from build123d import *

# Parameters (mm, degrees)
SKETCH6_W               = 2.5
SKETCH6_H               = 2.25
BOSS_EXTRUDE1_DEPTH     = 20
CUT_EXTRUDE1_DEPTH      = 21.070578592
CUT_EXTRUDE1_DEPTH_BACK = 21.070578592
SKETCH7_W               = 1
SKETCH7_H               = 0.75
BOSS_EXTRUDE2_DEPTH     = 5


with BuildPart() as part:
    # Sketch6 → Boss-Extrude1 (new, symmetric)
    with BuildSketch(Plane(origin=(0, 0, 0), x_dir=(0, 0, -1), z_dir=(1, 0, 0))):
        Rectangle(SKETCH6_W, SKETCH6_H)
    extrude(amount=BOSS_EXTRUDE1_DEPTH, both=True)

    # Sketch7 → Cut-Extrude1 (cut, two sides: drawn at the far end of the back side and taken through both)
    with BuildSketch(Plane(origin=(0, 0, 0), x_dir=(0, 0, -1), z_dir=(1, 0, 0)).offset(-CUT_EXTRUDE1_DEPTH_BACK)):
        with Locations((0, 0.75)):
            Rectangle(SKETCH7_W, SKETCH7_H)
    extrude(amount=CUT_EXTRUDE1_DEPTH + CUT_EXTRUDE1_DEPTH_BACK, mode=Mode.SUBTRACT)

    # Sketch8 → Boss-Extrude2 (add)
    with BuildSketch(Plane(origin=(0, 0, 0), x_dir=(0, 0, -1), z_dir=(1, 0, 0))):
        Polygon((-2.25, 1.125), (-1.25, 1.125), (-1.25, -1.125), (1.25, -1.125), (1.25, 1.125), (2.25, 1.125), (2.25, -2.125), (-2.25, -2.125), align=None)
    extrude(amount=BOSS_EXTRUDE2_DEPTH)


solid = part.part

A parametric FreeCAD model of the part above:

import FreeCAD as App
import Part
import Sketcher

V = App.Vector

doc = App.newDocument("Part")
body = doc.addObject("PartDesign::Body", "Body")

# Sketch on YZ plane
sketch1 = doc.addObject("Sketcher::SketchObject", "Sketch")
body.addObject(sketch1)
sketch1.AttachmentSupport = (doc.YZ_Plane, [""])
sketch1.MapMode = "FlatFace"
sketch1.addGeometry(Part.LineSegment(V(1.1, 1.2, 0), V(-1.1, 1.2, 0)), False)
sketch1.addGeometry(Part.LineSegment(V(-1.1, 1.2, 0), V(-1.1, -1.2, 0)), False)
sketch1.addGeometry(Part.LineSegment(V(-1.1, -1.2, 0), V(1.1, -1.2, 0)), False)
sketch1.addGeometry(Part.LineSegment(V(1.1, -1.2, 0), V(1.1, 1.2, 0)), False)
sketch1.addConstraint(Sketcher.Constraint("Coincident", 0, 2, 1, 1))
sketch1.addConstraint(Sketcher.Constraint("Coincident", 1, 2, 2, 1))
sketch1.addConstraint(Sketcher.Constraint("Coincident", 2, 2, 3, 1))
sketch1.addConstraint(Sketcher.Constraint("Coincident", 3, 2, 0, 1))
sketch1.addConstraint(Sketcher.Constraint("Horizontal", 0))
sketch1.addConstraint(Sketcher.Constraint("Vertical", 1))
sketch1.addConstraint(Sketcher.Constraint("Horizontal", 2))
sketch1.addConstraint(Sketcher.Constraint("Vertical", 3))
sketch1.addConstraint(Sketcher.Constraint("Symmetric", 0, 2, 2, 2, -1, 1))
sketch1.addConstraint(Sketcher.Constraint("DistanceY", 1, 2, 1, 1, 2.5))
sketch1.addConstraint(Sketcher.Constraint("DistanceX", 0, 2, 0, 1, 2.25))
pad1 = doc.addObject("PartDesign::Pad", "Pad")
body.addObject(pad1)
pad1.Profile = sketch1
pad1.Length = 40
pad1.Midplane = True

# Sketch on YZ plane
sketch2 = doc.addObject("Sketcher::SketchObject", "Sketch001")
body.addObject(sketch2)
sketch2.AttachmentSupport = (doc.YZ_Plane, [""])
sketch2.MapMode = "FlatFace"
sketch2.addGeometry(Part.LineSegment(V(1.1, 0.5, 0), V(0.4, 0.5, 0)), False)
sketch2.addGeometry(Part.LineSegment(V(0.4, 0.5, 0), V(0.4, -0.5, 0)), False)
sketch2.addGeometry(Part.LineSegment(V(0.4, -0.5, 0), V(1.1, -0.5, 0)), False)
sketch2.addGeometry(Part.LineSegment(V(1.1, -0.5, 0), V(1.1, 0.5, 0)), False)
sketch2.addConstraint(Sketcher.Constraint("Coincident", 0, 2, 1, 1))
sketch2.addConstraint(Sketcher.Constraint("Coincident", 1, 2, 2, 1))
sketch2.addConstraint(Sketcher.Constraint("Coincident", 2, 2, 3, 1))
sketch2.addConstraint(Sketcher.Constraint("Coincident", 3, 2, 0, 1))
sketch2.addConstraint(Sketcher.Constraint("Horizontal", 0))
sketch2.addConstraint(Sketcher.Constraint("Vertical", 1))
sketch2.addConstraint(Sketcher.Constraint("Horizontal", 2))
sketch2.addConstraint(Sketcher.Constraint("Vertical", 3))
sketch2.addConstraint(Sketcher.Constraint("DistanceY", 1, 2, 1, 1, 1.0))
sketch2.addConstraint(Sketcher.Constraint("DistanceX", 0, 2, 0, 1, 0.75))
sketch2.addConstraint(Sketcher.Constraint("DistanceY", -1, 1, 0, 2, 0.5))
sketch2.addConstraint(Sketcher.Constraint("DistanceX", -1, 1, 0, 2, 0.375))
pocket1 = doc.addObject("PartDesign::Pocket", "Pocket")
body.addObject(pocket1)
pocket1.Profile = sketch2
pocket1.Type = "ThroughAll"
pocket1.Midplane = True

# Sketch on YZ plane
sketch3 = doc.addObject("Sketcher::SketchObject", "Sketch002")
body.addObject(sketch3)
sketch3.AttachmentSupport = (doc.YZ_Plane, [""])
sketch3.MapMode = "FlatFace"
sketch3.addGeometry(Part.LineSegment(V(1.1, 1.2, 0), V(1.1, 2.2, 0)), False)
sketch3.addGeometry(Part.LineSegment(V(1.1, 2.2, 0), V(-2.1, 2.2, 0)), False)
sketch3.addGeometry(Part.LineSegment(V(-2.1, 2.2, 0), V(-2.1, -2.2, 0)), False)
sketch3.addGeometry(Part.LineSegment(V(-2.1, -2.2, 0), V(1.1, -2.2, 0)), False)
sketch3.addGeometry(Part.LineSegment(V(1.1, -2.2, 0), V(1.1, -1.2, 0)), False)
sketch3.addGeometry(Part.LineSegment(V(1.1, -1.2, 0), V(-1.1, -1.2, 0)), False)
sketch3.addGeometry(Part.LineSegment(V(-1.1, -1.2, 0), V(-1.1, 1.2, 0)), False)
sketch3.addGeometry(Part.LineSegment(V(-1.1, 1.2, 0), V(1.1, 1.2, 0)), False)
sketch3.addConstraint(Sketcher.Constraint("Coincident", 0, 2, 1, 1))
sketch3.addConstraint(Sketcher.Constraint("Coincident", 1, 2, 2, 1))
sketch3.addConstraint(Sketcher.Constraint("Coincident", 2, 2, 3, 1))
sketch3.addConstraint(Sketcher.Constraint("Coincident", 3, 2, 4, 1))
sketch3.addConstraint(Sketcher.Constraint("Coincident", 4, 2, 5, 1))
sketch3.addConstraint(Sketcher.Constraint("Coincident", 5, 2, 6, 1))
sketch3.addConstraint(Sketcher.Constraint("Coincident", 6, 2, 7, 1))
sketch3.addConstraint(Sketcher.Constraint("Coincident", 7, 2, 0, 1))
sketch3.addConstraint(Sketcher.Constraint("Vertical", 0))
sketch3.addConstraint(Sketcher.Constraint("Horizontal", 1))
sketch3.addConstraint(Sketcher.Constraint("Vertical", 2))
sketch3.addConstraint(Sketcher.Constraint("Horizontal", 3))
sketch3.addConstraint(Sketcher.Constraint("Vertical", 4))
sketch3.addConstraint(Sketcher.Constraint("Horizontal", 5))
sketch3.addConstraint(Sketcher.Constraint("Vertical", 6))
sketch3.addConstraint(Sketcher.Constraint("Horizontal", 7))
sketch3.addConstraint(Sketcher.Constraint("Symmetric", 4, 2, 6, 2, -1, 1))
sketch3.addConstraint(Sketcher.Constraint("Symmetric", 0, 2, 3, 2, -1))
sketch3.addConstraint(Sketcher.Constraint("DistanceY", 0, 1, 0, 2, 1.0))
sketch3.addConstraint(Sketcher.Constraint("DistanceY", 2, 2, 2, 1, 4.5))
sketch3.addConstraint(Sketcher.Constraint("DistanceX", 2, 2, 5, 2, 1.0))
sketch3.addConstraint(Sketcher.Constraint("DistanceX", 1, 2, 1, 1, 3.25))
pad2 = doc.addObject("PartDesign::Pad", "Pad001")
body.addObject(pad2)
pad2.Profile = sketch3
pad2.Length = 5

doc.recompute()
